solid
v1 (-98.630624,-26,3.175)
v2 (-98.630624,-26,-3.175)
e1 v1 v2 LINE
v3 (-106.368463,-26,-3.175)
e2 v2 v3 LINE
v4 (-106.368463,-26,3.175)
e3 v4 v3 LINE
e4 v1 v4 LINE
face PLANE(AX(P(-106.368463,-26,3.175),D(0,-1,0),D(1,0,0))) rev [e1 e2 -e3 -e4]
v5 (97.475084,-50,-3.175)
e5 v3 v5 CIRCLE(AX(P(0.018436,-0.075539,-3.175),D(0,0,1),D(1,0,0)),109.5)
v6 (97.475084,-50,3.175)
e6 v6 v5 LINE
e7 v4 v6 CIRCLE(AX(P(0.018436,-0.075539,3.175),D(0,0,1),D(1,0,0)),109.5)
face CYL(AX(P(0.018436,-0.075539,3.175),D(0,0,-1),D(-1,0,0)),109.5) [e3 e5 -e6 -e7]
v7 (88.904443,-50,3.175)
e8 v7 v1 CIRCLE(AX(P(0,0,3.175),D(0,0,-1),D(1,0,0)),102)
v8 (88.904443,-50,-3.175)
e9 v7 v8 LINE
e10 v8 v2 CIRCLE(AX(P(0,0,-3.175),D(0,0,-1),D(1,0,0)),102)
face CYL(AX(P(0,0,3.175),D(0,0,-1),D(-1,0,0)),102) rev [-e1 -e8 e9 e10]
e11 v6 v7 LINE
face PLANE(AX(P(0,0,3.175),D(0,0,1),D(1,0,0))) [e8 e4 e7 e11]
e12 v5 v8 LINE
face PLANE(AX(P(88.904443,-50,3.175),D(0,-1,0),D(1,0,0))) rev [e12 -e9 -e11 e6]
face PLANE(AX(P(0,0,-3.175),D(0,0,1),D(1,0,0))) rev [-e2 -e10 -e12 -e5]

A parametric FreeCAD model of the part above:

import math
import FreeCAD as App
import Part
import Sketcher

doc = App.newDocument("Part")
body = doc.addObject("PartDesign::Body", "Body")

sketch1 = body.newObject("Sketcher::SketchObject", "Sketch")
sketch1.AttachmentSupport = (doc.getObject("XY_Plane"), [""])
sketch1.MapMode = "FlatFace"
sketch1.addGeometry([
    Part.LineSegment(App.Vector(97, -50, 0), App.Vector(89, -50, 0)),
    Part.ArcOfCircle(Part.Circle(App.Vector(0, 0, 0), App.Vector(0, 0, 1), 102), math.radians(-165), math.radians(-29)),
    Part.LineSegment(App.Vector(-99, -26, 0), App.Vector(-106, -26, 0)),
    Part.ArcOfCircle(Part.Circle(App.Vector(0, 0, 0), App.Vector(0, 0, 1), 110), math.radians(-166), math.radians(-27)),
], False)
sketch1.addConstraint([
    Sketcher.Constraint("Coincident", 0, 2, 1, 2),
    Sketcher.Constraint("Coincident", 1, 1, 2, 1),
    Sketcher.Constraint("Coincident", 2, 2, 3, 1),
    Sketcher.Constraint("Coincident", 3, 2, 0, 1),
    Sketcher.Constraint("Horizontal", 0),
    Sketcher.Constraint("Horizontal", 2),
    Sketcher.Constraint("Coincident", 1, 3, -1, 1),
    Sketcher.Constraint("Radius", 1, 102.0),
    Sketcher.Constraint("Radius", 3, 109.5),
    Sketcher.Constraint("DistanceY", 0, 2, -1, 1, 50.0),
    Sketcher.Constraint("DistanceY", 1, 1, -1, 1, 26.0),
    Sketcher.Constraint("DistanceX", 0, 2, 0, 1, 8.570641),
    Sketcher.Constraint("DistanceX", 2, 2, 2, 1, 7.737839),
])
pad1 = body.newObject("PartDesign::Pad", "Pad")
pad1.Profile = sketch1
pad1.Length = 6.35
pad1.Midplane = True

doc.recompute()
